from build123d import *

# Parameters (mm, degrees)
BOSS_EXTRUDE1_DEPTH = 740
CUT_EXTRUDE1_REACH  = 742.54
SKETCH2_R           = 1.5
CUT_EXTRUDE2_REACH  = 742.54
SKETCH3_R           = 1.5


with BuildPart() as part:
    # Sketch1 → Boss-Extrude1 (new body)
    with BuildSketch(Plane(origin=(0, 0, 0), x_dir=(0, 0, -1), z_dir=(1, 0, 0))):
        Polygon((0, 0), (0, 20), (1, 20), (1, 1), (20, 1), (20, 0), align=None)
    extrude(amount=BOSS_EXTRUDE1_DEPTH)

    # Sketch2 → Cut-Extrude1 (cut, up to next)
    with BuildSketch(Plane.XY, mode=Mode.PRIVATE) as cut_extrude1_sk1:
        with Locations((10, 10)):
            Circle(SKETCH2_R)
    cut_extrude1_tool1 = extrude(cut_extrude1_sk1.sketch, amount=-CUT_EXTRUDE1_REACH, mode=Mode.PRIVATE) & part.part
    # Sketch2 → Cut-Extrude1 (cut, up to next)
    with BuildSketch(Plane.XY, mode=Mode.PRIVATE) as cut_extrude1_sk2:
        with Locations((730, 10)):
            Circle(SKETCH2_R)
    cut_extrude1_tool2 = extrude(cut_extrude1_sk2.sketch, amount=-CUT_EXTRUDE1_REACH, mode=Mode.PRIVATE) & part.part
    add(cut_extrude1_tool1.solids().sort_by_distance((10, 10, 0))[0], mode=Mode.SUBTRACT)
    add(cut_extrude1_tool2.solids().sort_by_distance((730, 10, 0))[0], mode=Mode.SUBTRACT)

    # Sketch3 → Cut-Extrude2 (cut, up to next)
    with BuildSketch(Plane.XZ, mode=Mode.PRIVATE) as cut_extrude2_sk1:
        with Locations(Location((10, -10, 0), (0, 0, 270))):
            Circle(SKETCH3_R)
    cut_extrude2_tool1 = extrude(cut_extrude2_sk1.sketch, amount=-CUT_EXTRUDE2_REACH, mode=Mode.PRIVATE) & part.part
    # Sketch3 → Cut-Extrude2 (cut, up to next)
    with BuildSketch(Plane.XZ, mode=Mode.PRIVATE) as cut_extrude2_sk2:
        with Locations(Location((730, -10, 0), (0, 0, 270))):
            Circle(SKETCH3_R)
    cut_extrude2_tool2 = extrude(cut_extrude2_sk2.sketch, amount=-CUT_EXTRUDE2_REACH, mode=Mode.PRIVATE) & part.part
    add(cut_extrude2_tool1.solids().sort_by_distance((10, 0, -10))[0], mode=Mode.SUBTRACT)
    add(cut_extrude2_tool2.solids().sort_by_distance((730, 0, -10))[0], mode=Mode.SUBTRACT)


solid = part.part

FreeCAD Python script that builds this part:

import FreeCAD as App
import Part
import Sketcher
from FreeCAD import Vector

doc = App.newDocument("Part")
body = doc.addObject("PartDesign::Body", "Body")

# Sketch on YZ plane
sketch1 = doc.addObject("Sketcher::SketchObject", "Sketch")
body.addObject(sketch1)
sketch1.AttachmentSupport = (doc.YZ_Plane, [""])
sketch1.MapMode = "FlatFace"
sketch1.addGeometry([
    Part.LineSegment(Vector(20, 0, 0), Vector(0, 0, 0)),  # 0
    Part.LineSegment(Vector(0, 0, 0), Vector(0, -20, 0)),  # 1
    Part.LineSegment(Vector(0, -20, 0), Vector(1, -20, 0)),  # 2
    Part.LineSegment(Vector(1, -20, 0), Vector(1, -1, 0)),  # 3
    Part.LineSegment(Vector(1, -1, 0), Vector(20, -1, 0)),  # 4
    Part.LineSegment(Vector(20, -1, 0), Vector(20, 0, 0)),  # 5
], False)
sketch1.addConstraint([
    Sketcher.Constraint("Coincident", 0, 2, 1, 1),
    Sketcher.Constraint("Coincident", 1, 2, 2, 1),
    Sketcher.Constraint("Coincident", 2, 2, 3, 1),
    Sketcher.Constraint("Coincident", 3, 2, 4, 1),
    Sketcher.Constraint("Coincident", 4, 2, 5, 1),
    Sketcher.Constraint("Coincident", 5, 2, 0, 1),
    Sketcher.Constraint("Horizontal", 0),
    Sketcher.Constraint("Vertical", 1),
    Sketcher.Constraint("Horizontal", 2),
    Sketcher.Constraint("Vertical", 3),
    Sketcher.Constraint("Horizontal", 4),
    Sketcher.Constraint("Vertical", 5),
    Sketcher.Constraint("Coincident", 0, 2, -1, 1),
    Sketcher.Constraint("Equal", 0, 1),
    Sketcher.Constraint("Equal", 4, 3),
    Sketcher.Constraint("DistanceX", 0, 2, 0, 1, 20.0),
    Sketcher.Constraint("DistanceX", 2, 1, 2, 2, 1.0),
])
pad1 = doc.addObject("PartDesign::Pad", "Pad")
body.addObject(pad1)
pad1.Profile = sketch1
pad1.Length = 740

# Sketch on XY plane
sketch2 = doc.addObject("Sketcher::SketchObject", "Sketch001")
body.addObject(sketch2)
sketch2.AttachmentSupport = (doc.XY_Plane, [""])
sketch2.MapMode = "FlatFace"
sketch2.addGeometry(Part.Circle(Vector(10, 10, 0), Vector(0, 0, 1), 1.5), False)
sketch2.addConstraint([
    Sketcher.Constraint("Diameter", 0, 3.0),
    Sketcher.Constraint("DistanceX", -1, 1, 0, 3, 10.0),
    Sketcher.Constraint("DistanceY", -1, 1, 0, 3, 10.0),
])
pocket1 = doc.addObject("PartDesign::Pocket", "Pocket")
body.addObject(pocket1)
pocket1.Profile = sketch2
pocket1.Type = "UpToFirst"

# Sketch on XY plane
sketch3 = doc.addObject("Sketcher::SketchObject", "Sketch002")
body.addObject(sketch3)
sketch3.AttachmentSupport = (doc.XY_Plane, [""])
sketch3.MapMode = "FlatFace"
sketch3.addGeometry(Part.Circle(Vector(730, 10, 0), Vector(0, 0, 1), 1.5), False)
sketch3.addConstraint([
    Sketcher.Constraint("Diameter", 0, 3.0),
    Sketcher.Constraint("DistanceX", -1, 1, 0, 3, 730.0),
    Sketcher.Constraint("DistanceY", -1, 1, 0, 3, 10.0),
])
pocket2 = doc.addObject("PartDesign::Pocket", "Pocket001")
body.addObject(pocket2)
pocket2.Profile = sketch3
pocket2.Type = "UpToFirst"

# Sketch on XZ plane
sketch4 = doc.addObject("Sketcher::SketchObject", "Sketch003")
body.addObject(sketch4)
sketch4.AttachmentSupport = (doc.XZ_Plane, [""])
sketch4.MapMode = "FlatFace"
sketch4.addGeometry(Part.Circle(Vector(10, -10, 0), Vector(0, 0, 1), 1.5), False)
sketch4.addConstraint([
    Sketcher.Constraint("Diameter", 0, 3.0),
    Sketcher.Constraint("DistanceX", -1, 1, 0, 3, 10.0),
    Sketcher.Constraint("DistanceY", 0, 3, -1, 1, 10.0),
])
pocket3 = doc.addObject("PartDesign::Pocket", "Pocket002")
body.addObject(pocket3)
pocket3.Profile = sketch4
pocket3.Type = "UpToFirst"

# Sketch on XZ plane
sketch5 = doc.addObject("Sketcher::SketchObject", "Sketch004")
body.addObject(sketch5)
sketch5.AttachmentSupport = (doc.XZ_Plane, [""])
sketch5.MapMode = "FlatFace"
sketch5.addGeometry(Part.Circle(Vector(730, -10, 0), Vector(0, 0, 1), 1.5), False)
sketch5.addConstraint([
    Sketcher.Constraint("Diameter", 0, 3.0),
    Sketcher.Constraint("DistanceX", -1, 1, 0, 3, 730.0),
    Sketcher.Constraint("DistanceY", 0, 3, -1, 1, 10.0),
])
pocket4 = doc.addObject("PartDesign::Pocket", "Pocket003")
body.addObject(pocket4)
pocket4.Profile = sketch5
pocket4.Type = "UpToFirst"

doc.recompute()
